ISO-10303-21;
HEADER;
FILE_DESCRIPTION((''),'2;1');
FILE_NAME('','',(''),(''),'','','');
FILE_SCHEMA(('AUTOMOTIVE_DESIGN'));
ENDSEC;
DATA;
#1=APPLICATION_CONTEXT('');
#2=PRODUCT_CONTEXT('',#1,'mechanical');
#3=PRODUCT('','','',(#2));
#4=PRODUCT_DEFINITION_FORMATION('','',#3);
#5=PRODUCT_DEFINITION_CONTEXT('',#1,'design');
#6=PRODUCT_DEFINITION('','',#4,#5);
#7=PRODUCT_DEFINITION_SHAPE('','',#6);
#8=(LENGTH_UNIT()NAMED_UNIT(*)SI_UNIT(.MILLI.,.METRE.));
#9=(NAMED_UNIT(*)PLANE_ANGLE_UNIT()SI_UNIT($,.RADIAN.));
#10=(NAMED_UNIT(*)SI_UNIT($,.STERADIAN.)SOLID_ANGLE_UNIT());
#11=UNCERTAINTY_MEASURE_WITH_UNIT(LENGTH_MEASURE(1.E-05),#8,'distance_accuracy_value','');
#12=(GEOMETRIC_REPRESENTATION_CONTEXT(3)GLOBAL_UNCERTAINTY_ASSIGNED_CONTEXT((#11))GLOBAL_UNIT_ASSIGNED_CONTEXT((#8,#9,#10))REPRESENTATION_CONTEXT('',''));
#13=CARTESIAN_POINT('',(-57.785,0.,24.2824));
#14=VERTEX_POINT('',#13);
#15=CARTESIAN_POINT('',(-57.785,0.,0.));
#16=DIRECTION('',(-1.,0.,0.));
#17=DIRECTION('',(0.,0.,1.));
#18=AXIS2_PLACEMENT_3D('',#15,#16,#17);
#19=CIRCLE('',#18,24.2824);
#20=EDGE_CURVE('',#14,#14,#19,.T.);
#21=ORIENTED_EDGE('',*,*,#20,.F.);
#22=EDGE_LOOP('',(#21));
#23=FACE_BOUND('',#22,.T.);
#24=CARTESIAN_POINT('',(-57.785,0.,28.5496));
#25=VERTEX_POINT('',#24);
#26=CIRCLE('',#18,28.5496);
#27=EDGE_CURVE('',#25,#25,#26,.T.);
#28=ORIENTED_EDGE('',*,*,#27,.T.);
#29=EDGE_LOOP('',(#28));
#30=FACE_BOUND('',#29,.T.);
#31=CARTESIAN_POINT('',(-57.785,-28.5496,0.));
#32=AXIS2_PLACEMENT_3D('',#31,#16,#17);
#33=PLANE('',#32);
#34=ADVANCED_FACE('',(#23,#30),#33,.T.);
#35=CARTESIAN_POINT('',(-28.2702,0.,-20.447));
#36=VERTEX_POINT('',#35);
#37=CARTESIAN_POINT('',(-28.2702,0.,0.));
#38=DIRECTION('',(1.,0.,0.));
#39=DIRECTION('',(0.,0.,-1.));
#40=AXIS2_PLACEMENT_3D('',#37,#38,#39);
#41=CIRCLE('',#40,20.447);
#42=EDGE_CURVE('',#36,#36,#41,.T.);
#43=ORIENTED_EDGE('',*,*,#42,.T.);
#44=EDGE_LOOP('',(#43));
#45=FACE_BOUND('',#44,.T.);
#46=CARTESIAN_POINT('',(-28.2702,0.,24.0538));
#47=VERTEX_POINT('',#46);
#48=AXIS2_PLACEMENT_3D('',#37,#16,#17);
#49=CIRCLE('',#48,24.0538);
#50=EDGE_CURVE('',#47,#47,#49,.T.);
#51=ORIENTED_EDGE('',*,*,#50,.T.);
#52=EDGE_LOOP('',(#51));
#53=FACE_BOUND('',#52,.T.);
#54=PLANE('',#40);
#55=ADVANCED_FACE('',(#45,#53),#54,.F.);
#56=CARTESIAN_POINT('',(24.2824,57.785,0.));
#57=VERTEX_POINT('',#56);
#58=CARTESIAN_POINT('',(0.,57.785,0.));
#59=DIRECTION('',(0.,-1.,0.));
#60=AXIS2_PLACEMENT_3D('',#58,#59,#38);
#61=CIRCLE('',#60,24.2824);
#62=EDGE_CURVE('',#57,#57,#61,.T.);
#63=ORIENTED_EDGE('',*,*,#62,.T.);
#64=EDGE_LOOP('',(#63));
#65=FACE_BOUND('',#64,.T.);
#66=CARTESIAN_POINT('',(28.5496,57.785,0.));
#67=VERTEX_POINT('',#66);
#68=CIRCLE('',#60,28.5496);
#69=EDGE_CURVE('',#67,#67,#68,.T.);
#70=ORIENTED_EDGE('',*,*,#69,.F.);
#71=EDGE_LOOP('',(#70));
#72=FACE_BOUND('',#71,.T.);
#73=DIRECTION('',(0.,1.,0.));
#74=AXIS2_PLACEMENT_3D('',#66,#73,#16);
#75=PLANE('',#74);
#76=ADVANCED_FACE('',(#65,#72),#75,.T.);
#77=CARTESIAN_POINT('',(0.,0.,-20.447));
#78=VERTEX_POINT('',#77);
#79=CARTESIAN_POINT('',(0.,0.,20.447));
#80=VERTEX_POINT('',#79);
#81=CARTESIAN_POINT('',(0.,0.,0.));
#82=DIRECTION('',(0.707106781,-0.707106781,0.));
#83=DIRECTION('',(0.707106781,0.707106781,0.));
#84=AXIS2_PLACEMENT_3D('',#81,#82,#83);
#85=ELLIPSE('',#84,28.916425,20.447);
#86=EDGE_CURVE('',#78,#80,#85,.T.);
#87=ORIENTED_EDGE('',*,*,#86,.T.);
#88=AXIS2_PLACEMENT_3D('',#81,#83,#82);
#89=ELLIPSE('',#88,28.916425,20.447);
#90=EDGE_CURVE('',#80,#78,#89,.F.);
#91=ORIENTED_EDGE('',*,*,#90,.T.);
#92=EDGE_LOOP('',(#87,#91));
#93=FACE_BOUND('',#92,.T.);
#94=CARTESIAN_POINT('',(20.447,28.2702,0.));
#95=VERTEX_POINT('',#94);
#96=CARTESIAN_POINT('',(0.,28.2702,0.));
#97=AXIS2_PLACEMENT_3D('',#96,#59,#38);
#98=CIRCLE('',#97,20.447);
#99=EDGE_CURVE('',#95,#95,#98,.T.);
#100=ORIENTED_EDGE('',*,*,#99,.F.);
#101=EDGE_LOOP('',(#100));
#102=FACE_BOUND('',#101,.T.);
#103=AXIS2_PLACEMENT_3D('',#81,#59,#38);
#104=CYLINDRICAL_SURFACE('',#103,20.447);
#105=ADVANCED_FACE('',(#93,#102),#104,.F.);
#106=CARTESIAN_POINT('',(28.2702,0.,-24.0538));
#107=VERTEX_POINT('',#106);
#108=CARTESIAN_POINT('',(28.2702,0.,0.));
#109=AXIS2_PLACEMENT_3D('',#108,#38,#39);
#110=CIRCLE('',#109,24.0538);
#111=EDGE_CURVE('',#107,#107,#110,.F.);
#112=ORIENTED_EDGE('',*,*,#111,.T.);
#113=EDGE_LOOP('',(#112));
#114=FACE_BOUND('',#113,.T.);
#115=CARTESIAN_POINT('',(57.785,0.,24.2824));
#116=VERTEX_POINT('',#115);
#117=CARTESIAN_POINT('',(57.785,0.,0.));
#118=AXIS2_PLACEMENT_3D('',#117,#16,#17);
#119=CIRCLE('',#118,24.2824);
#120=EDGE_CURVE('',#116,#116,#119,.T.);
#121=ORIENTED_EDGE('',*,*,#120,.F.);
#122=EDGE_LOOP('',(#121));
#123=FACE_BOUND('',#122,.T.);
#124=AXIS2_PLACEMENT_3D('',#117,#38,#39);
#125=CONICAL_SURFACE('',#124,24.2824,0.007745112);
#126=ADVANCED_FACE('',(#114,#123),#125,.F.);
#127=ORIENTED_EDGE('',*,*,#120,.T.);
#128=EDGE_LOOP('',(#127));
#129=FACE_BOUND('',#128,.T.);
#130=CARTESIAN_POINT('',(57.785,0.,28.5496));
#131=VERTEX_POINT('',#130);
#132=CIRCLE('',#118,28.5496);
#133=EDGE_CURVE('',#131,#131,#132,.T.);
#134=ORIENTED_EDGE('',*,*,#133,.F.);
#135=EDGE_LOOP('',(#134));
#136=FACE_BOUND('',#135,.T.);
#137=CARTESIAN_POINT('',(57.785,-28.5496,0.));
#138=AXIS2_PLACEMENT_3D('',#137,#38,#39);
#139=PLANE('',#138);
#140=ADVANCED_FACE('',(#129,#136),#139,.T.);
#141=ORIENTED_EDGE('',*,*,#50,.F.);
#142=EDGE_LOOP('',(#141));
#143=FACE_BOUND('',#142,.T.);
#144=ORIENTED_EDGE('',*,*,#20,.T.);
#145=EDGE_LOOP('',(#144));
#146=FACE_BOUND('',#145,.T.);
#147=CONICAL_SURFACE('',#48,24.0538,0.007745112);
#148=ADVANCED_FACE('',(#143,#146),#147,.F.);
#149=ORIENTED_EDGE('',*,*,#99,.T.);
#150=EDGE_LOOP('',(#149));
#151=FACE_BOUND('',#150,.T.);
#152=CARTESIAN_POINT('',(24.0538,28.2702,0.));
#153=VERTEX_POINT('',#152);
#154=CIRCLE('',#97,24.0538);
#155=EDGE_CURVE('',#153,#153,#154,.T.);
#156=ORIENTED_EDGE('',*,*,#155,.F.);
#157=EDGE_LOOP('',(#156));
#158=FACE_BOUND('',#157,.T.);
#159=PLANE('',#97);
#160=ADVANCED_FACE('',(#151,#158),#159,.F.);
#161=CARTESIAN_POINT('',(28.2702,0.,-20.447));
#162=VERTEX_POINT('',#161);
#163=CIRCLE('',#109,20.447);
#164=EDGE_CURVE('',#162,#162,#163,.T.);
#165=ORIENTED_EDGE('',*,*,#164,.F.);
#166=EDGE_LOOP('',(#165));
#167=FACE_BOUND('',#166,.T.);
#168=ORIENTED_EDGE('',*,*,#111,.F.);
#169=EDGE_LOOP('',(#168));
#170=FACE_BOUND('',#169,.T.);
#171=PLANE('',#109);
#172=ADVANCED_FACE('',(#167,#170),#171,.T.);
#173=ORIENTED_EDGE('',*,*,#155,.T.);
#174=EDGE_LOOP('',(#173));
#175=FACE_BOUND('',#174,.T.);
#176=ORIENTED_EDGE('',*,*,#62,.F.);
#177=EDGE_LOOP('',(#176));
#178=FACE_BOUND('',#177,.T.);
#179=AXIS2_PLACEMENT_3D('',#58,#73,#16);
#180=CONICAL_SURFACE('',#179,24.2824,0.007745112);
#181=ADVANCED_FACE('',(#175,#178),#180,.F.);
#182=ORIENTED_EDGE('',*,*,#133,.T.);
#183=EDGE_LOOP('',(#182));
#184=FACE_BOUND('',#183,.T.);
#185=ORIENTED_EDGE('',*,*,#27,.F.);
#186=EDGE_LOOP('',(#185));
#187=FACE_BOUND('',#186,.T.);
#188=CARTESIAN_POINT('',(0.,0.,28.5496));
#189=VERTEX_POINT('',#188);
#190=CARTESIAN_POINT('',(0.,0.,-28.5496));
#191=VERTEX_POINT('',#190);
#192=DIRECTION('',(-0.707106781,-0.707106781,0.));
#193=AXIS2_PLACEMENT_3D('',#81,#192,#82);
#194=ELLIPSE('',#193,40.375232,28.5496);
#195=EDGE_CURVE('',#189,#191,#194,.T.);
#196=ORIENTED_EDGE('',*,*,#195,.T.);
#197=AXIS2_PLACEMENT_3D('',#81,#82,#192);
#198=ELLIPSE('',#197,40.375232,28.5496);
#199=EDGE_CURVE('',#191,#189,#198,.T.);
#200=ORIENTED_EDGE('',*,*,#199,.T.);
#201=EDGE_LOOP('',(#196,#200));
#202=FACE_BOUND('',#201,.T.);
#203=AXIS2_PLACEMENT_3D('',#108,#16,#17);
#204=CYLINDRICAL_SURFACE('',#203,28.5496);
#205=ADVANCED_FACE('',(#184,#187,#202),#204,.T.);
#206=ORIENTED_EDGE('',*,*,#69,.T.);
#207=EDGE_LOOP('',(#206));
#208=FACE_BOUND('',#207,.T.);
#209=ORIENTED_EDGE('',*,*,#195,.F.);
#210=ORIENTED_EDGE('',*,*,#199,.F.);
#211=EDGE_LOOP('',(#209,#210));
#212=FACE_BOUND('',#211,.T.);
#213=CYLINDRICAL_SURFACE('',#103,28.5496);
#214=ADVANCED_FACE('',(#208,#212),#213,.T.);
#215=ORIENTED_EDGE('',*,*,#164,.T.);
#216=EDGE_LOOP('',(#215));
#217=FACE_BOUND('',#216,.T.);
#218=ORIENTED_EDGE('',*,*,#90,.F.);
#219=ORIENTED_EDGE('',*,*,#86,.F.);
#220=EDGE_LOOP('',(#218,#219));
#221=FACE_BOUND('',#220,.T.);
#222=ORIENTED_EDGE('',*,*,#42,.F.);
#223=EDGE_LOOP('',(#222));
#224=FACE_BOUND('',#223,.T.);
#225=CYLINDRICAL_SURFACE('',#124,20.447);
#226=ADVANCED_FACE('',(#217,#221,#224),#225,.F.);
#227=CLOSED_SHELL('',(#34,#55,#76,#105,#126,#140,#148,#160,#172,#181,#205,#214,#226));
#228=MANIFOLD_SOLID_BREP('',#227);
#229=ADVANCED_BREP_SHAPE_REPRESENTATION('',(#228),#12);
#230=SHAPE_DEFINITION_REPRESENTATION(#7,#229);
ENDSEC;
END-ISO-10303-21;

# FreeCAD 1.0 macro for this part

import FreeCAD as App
import Part
import Sketcher

V = App.Vector
Q = App.Units.Quantity

doc = App.newDocument("Part")
body = doc.addObject("PartDesign::Body", "Body")
body.AllowCompound = True

sketch1 = body.newObject("Sketcher::SketchObject", "Sketch")
sketch1.AttachmentSupport = (doc.getObject("XY_Plane"), [""])
sketch1.MapMode = "FlatFace"
sketch1.addGeometry([
    Part.LineSegment(V(-57.8, -28.5, 0), V(-28.3, -28.5, 0)),
    Part.LineSegment(V(-28.3, -28.5, 0), V(-28.3, -24.1, 0)),
    Part.LineSegment(V(-28.3, -24.1, 0), V(-57.8, -24.3, 0)),
    Part.LineSegment(V(-57.8, -24.3, 0), V(-57.8, -28.5, 0)),
    Part.LineSegment(V(57.8, -24.3, 0), V(28.3, -24.1, 0)),
    Part.LineSegment(V(28.3, -24.1, 0), V(28.3, -28.5, 0)),
    Part.LineSegment(V(28.3, -28.5, 0), V(57.8, -28.5, 0)),
    Part.LineSegment(V(57.8, -28.5, 0), V(57.8, -24.3, 0)),
], False)
sketch1.addConstraint([
    Sketcher.Constraint("Coincident", 0, 2, 1, 1),
    Sketcher.Constraint("Coincident", 1, 2, 2, 1),
    Sketcher.Constraint("Coincident", 2, 2, 3, 1),
    Sketcher.Constraint("Coincident", 3, 2, 0, 1),
    Sketcher.Constraint("Coincident", 4, 2, 5, 1),
    Sketcher.Constraint("Coincident", 5, 2, 6, 1),
    Sketcher.Constraint("Coincident", 6, 2, 7, 1),
    Sketcher.Constraint("Coincident", 7, 2, 4, 1),
    Sketcher.Constraint("Horizontal", 0),
    Sketcher.Constraint("Vertical", 1),
    Sketcher.Constraint("Vertical", 3),
    Sketcher.Constraint("Vertical", 5),
    Sketcher.Constraint("Horizontal", 6),
    Sketcher.Constraint("Vertical", 7),
    Sketcher.Constraint("Symmetric", 1, 2, 4, 2, -2),
    Sketcher.Constraint("Symmetric", 3, 2, 6, 2, -2),
    Sketcher.Constraint("Horizontal", 2, 2, 7, 2),
    Sketcher.Constraint("DistanceX", 0, 1, 0, 2, Q("1.162 in")),
    Sketcher.Constraint("DistanceY", 1, 1, 1, 2, Q("0.177 in")),
    Sketcher.Constraint("DistanceY", 3, 2, 3, 1, Q("0.168 in")),
    Sketcher.Constraint("DistanceX", 3, 2, 6, 2, Q("4.55 in")),
    Sketcher.Constraint("DistanceY", 0, 2, -1, 1, Q("1.124 in")),
])
revolution = body.newObject("PartDesign::Revolution", "Revolution")
revolution.Profile = sketch1
revolution.ReferenceAxis = (sketch1, ["H_Axis"])
revolution.Angle = 360
body2 = doc.addObject("PartDesign::Body", "Body001")

sketch2 = body2.newObject("Sketcher::SketchObject", "Sketch001")
sketch2.AttachmentSupport = (doc.getObject("XY_Plane001"), [""])
sketch2.MapMode = "FlatFace"
sketch2.addGeometry([
    Part.LineSegment(V(24.3, 57.8, 0), V(24.1, 28.3, 0)),
    Part.LineSegment(V(24.1, 28.3, 0), V(28.5, 28.3, 0)),
    Part.LineSegment(V(28.5, 28.3, 0), V(28.5, 57.8, 0)),
    Part.LineSegment(V(28.5, 57.8, 0), V(24.3, 57.8, 0)),
], False)
sketch2.addConstraint([
    Sketcher.Constraint("Coincident", 0, 2, 1, 1),
    Sketcher.Constraint("Coincident", 1, 2, 2, 1),
    Sketcher.Constraint("Coincident", 2, 2, 3, 1),
    Sketcher.Constraint("Coincident", 3, 2, 0, 1),
    Sketcher.Constraint("Horizontal", 1),
    Sketcher.Constraint("Vertical", 2),
    Sketcher.Constraint("Horizontal", 3),
    Sketcher.Constraint("DistanceX", 1, 1, 1, 2, Q("0.177 in")),
    Sketcher.Constraint("DistanceX", 3, 2, 3, 1, Q("0.168 in")),
    Sketcher.Constraint("DistanceY", 2, 1, 2, 2, Q("1.162 in")),
    Sketcher.Constraint("DistanceX", -1, 1, 0, 2, Q("0.947 in")),
    Sketcher.Constraint("DistanceY", -1, 1, 0, 2, Q("1.113 in")),
])
revolution2 = body2.newObject("PartDesign::Revolution", "Revolution001")
revolution2.Profile = sketch2
revolution2.ReferenceAxis = (sketch2, ["V_Axis"])
revolution2.Angle = 360
doc.recompute()

boolean = body.newObject("PartDesign::Boolean", "Boolean")
boolean.Type = "Fuse"
boolean.addObjects([body2])

sketch3 = body.newObject("Sketcher::SketchObject", "Sketch002")
sketch3.AttachmentSupport = (doc.getObject("YZ_Plane"), [""])
sketch3.MapMode = "FlatFace"
sketch3.AttachmentOffset = App.Placement(V(0, 0, -1.113 * 25.4), App.Rotation())
sketch3.addGeometry(Part.Circle(V(0, 0, 0), V(0, 0, 1), 29), False)
sketch3.addConstraint([
    Sketcher.Constraint("Coincident", 0, 3, -1, 1),
    Sketcher.Constraint("Diameter", 0, Q("2.248 in")),
])
pad1 = body.newObject("PartDesign::Pad", "Pad")
pad1.Profile = sketch3
pad1.Length = Q("2.226 in")

sketch4 = body.newObject("Sketcher::SketchObject", "Sketch003")
sketch4.AttachmentSupport = (doc.getObject("XZ_Plane"), [""])
sketch4.MapMode = "FlatFace"
sketch4.AttachmentOffset = App.Placement(V(0, 0, -1.113 * 25.4), App.Rotation())
sketch4.addGeometry(Part.Circle(V(0, 0, 0), V(0, 0, 1), 29), False)
sketch4.addConstraint([
    Sketcher.Constraint("Coincident", 0, 3, -1, 1),
    Sketcher.Constraint("Diameter", 0, Q("2.248 in")),
])
pad2 = body.newObject("PartDesign::Pad", "Pad001")
pad2.Profile = sketch4
pad2.Length = Q("1.113 in")

sketch5 = body.newObject("Sketcher::SketchObject", "Sketch004")
sketch5.AttachmentSupport = (doc.getObject("XY_Plane"), [""])
sketch5.MapMode = "FlatFace"
sketch5.addGeometry([
    Part.LineSegment(V(-57.8, -24.3, 0), V(-28.3, -24.1, 0)),
    Part.LineSegment(V(-28.3, -24.1, 0), V(-28.3, -20.4, 0)),
    Part.LineSegment(V(-28.3, -20.4, 0), V(28.3, -20.4, 0)),
    Part.LineSegment(V(28.3, -20.4, 0), V(28.3, -24.1, 0)),
    Part.LineSegment(V(28.3, -24.1, 0), V(57.8, -24.3, 0)),
    Part.LineSegment(V(57.8, -24.3, 0), V(57.8, 0, 0)),
    Part.LineSegment(V(57.8, 0, 0), V(-57.8, 0, 0)),
    Part.LineSegment(V(-57.8, 0, 0), V(-57.8, -24.3, 0)),
], False)
sketch5.addConstraint([
    Sketcher.Constraint("Coincident", 0, 2, 1, 1),
    Sketcher.Constraint("Coincident", 1, 2, 2, 1),
    Sketcher.Constraint("Coincident", 2, 2, 3, 1),
    Sketcher.Constraint("Coincident", 3, 2, 4, 1),
    Sketcher.Constraint("Coincident", 4, 2, 5, 1),
    Sketcher.Constraint("Coincident", 5, 2, 6, 1),
    Sketcher.Constraint("Coincident", 6, 2, 7, 1),
    Sketcher.Constraint("Coincident", 7, 2, 0, 1),
    Sketcher.Constraint("Vertical", 1),
    Sketcher.Constraint("Horizontal", 2),
    Sketcher.Constraint("Vertical", 3),
    Sketcher.Constraint("Vertical", 5),
    Sketcher.Constraint("Horizontal", 6),
    Sketcher.Constraint("Vertical", 7),
    Sketcher.Constraint("Symmetric", 5, 2, 6, 2, -1, 1),
    Sketcher.Constraint("Symmetric", 0, 2, 3, 2, -2),
    Sketcher.Constraint("Horizontal", 4, 2, 7, 2),
    Sketcher.Constraint("DistanceX", 6, 2, 6, 1, Q("4.55 in")),
    Sketcher.Constraint("DistanceX", 2, 1, 2, 2, Q("2.226 in")),
    Sketcher.Constraint("DistanceY", 1, 1, 1, 2, Q("0.142 in")),
    Sketcher.Constraint("DistanceY", 5, 1, 5, 2, Q("0.956 in")),
    Sketcher.Constraint("DistanceY", 0, 2, -1, 1, Q("0.947 in")),
])
groove = body.newObject("PartDesign::Groove", "Groove")
groove.Profile = sketch5
groove.ReferenceAxis = (sketch5, ["H_Axis"])
groove.Angle = 360

sketch6 = body.newObject("Sketcher::SketchObject", "Sketch005")
sketch6.AttachmentSupport = (doc.getObject("XY_Plane"), [""])
sketch6.MapMode = "FlatFace"
sketch6.addGeometry([
    Part.LineSegment(V(24.1, 28.3, 0), V(24.3, 57.8, 0)),
    Part.LineSegment(V(24.3, 57.8, 0), V(0, 57.8, 0)),
    Part.LineSegment(V(0, 57.8, 0), V(0, 0, 0)),
    Part.LineSegment(V(0, 0, 0), V(20.4, 0, 0)),
    Part.LineSegment(V(20.4, 0, 0), V(20.4, 28.3, 0)),
    Part.LineSegment(V(20.4, 28.3, 0), V(24.1, 28.3, 0)),
], False)
sketch6.addConstraint([
    Sketcher.Constraint("Coincident", 0, 2, 1, 1),
    Sketcher.Constraint("Coincident", 1, 2, 2, 1),
    Sketcher.Constraint("Coincident", 2, 2, 3, 1),
    Sketcher.Constraint("Coincident", 3, 2, 4, 1),
    Sketcher.Constraint("Coincident", 4, 2, 5, 1),
    Sketcher.Constraint("Coincident", 5, 2, 0, 1),
    Sketcher.Constraint("Horizontal", 1),
    Sketcher.Constraint("Vertical", 2),
    Sketcher.Constraint("Horizontal", 3),
    Sketcher.Constraint("Vertical", 4),
    Sketcher.Constraint("Horizontal", 5),
    Sketcher.Constraint("Coincident", 2, 2, -1, 1),
    Sketcher.Constraint("DistanceX", 1, 2, 1, 1, Q("0.956 in")),
    Sketcher.Constraint("DistanceX", 3, 1, 3, 2, Q("0.805 in")),
    Sketcher.Constraint("DistanceX", 5, 1, 5, 2, Q("0.142 in")),
    Sketcher.Constraint("DistanceY", 2, 2, 2, 1, Q("2.275 in")),
    Sketcher.Constraint("DistanceY", 4, 1, 4, 2, Q("1.113 in")),
])
groove2 = body.newObject("PartDesign::Groove", "Groove001")
groove2.Profile = sketch6
groove2.ReferenceAxis = (sketch6, ["V_Axis"])
groove2.Angle = 360

doc.recompute()
